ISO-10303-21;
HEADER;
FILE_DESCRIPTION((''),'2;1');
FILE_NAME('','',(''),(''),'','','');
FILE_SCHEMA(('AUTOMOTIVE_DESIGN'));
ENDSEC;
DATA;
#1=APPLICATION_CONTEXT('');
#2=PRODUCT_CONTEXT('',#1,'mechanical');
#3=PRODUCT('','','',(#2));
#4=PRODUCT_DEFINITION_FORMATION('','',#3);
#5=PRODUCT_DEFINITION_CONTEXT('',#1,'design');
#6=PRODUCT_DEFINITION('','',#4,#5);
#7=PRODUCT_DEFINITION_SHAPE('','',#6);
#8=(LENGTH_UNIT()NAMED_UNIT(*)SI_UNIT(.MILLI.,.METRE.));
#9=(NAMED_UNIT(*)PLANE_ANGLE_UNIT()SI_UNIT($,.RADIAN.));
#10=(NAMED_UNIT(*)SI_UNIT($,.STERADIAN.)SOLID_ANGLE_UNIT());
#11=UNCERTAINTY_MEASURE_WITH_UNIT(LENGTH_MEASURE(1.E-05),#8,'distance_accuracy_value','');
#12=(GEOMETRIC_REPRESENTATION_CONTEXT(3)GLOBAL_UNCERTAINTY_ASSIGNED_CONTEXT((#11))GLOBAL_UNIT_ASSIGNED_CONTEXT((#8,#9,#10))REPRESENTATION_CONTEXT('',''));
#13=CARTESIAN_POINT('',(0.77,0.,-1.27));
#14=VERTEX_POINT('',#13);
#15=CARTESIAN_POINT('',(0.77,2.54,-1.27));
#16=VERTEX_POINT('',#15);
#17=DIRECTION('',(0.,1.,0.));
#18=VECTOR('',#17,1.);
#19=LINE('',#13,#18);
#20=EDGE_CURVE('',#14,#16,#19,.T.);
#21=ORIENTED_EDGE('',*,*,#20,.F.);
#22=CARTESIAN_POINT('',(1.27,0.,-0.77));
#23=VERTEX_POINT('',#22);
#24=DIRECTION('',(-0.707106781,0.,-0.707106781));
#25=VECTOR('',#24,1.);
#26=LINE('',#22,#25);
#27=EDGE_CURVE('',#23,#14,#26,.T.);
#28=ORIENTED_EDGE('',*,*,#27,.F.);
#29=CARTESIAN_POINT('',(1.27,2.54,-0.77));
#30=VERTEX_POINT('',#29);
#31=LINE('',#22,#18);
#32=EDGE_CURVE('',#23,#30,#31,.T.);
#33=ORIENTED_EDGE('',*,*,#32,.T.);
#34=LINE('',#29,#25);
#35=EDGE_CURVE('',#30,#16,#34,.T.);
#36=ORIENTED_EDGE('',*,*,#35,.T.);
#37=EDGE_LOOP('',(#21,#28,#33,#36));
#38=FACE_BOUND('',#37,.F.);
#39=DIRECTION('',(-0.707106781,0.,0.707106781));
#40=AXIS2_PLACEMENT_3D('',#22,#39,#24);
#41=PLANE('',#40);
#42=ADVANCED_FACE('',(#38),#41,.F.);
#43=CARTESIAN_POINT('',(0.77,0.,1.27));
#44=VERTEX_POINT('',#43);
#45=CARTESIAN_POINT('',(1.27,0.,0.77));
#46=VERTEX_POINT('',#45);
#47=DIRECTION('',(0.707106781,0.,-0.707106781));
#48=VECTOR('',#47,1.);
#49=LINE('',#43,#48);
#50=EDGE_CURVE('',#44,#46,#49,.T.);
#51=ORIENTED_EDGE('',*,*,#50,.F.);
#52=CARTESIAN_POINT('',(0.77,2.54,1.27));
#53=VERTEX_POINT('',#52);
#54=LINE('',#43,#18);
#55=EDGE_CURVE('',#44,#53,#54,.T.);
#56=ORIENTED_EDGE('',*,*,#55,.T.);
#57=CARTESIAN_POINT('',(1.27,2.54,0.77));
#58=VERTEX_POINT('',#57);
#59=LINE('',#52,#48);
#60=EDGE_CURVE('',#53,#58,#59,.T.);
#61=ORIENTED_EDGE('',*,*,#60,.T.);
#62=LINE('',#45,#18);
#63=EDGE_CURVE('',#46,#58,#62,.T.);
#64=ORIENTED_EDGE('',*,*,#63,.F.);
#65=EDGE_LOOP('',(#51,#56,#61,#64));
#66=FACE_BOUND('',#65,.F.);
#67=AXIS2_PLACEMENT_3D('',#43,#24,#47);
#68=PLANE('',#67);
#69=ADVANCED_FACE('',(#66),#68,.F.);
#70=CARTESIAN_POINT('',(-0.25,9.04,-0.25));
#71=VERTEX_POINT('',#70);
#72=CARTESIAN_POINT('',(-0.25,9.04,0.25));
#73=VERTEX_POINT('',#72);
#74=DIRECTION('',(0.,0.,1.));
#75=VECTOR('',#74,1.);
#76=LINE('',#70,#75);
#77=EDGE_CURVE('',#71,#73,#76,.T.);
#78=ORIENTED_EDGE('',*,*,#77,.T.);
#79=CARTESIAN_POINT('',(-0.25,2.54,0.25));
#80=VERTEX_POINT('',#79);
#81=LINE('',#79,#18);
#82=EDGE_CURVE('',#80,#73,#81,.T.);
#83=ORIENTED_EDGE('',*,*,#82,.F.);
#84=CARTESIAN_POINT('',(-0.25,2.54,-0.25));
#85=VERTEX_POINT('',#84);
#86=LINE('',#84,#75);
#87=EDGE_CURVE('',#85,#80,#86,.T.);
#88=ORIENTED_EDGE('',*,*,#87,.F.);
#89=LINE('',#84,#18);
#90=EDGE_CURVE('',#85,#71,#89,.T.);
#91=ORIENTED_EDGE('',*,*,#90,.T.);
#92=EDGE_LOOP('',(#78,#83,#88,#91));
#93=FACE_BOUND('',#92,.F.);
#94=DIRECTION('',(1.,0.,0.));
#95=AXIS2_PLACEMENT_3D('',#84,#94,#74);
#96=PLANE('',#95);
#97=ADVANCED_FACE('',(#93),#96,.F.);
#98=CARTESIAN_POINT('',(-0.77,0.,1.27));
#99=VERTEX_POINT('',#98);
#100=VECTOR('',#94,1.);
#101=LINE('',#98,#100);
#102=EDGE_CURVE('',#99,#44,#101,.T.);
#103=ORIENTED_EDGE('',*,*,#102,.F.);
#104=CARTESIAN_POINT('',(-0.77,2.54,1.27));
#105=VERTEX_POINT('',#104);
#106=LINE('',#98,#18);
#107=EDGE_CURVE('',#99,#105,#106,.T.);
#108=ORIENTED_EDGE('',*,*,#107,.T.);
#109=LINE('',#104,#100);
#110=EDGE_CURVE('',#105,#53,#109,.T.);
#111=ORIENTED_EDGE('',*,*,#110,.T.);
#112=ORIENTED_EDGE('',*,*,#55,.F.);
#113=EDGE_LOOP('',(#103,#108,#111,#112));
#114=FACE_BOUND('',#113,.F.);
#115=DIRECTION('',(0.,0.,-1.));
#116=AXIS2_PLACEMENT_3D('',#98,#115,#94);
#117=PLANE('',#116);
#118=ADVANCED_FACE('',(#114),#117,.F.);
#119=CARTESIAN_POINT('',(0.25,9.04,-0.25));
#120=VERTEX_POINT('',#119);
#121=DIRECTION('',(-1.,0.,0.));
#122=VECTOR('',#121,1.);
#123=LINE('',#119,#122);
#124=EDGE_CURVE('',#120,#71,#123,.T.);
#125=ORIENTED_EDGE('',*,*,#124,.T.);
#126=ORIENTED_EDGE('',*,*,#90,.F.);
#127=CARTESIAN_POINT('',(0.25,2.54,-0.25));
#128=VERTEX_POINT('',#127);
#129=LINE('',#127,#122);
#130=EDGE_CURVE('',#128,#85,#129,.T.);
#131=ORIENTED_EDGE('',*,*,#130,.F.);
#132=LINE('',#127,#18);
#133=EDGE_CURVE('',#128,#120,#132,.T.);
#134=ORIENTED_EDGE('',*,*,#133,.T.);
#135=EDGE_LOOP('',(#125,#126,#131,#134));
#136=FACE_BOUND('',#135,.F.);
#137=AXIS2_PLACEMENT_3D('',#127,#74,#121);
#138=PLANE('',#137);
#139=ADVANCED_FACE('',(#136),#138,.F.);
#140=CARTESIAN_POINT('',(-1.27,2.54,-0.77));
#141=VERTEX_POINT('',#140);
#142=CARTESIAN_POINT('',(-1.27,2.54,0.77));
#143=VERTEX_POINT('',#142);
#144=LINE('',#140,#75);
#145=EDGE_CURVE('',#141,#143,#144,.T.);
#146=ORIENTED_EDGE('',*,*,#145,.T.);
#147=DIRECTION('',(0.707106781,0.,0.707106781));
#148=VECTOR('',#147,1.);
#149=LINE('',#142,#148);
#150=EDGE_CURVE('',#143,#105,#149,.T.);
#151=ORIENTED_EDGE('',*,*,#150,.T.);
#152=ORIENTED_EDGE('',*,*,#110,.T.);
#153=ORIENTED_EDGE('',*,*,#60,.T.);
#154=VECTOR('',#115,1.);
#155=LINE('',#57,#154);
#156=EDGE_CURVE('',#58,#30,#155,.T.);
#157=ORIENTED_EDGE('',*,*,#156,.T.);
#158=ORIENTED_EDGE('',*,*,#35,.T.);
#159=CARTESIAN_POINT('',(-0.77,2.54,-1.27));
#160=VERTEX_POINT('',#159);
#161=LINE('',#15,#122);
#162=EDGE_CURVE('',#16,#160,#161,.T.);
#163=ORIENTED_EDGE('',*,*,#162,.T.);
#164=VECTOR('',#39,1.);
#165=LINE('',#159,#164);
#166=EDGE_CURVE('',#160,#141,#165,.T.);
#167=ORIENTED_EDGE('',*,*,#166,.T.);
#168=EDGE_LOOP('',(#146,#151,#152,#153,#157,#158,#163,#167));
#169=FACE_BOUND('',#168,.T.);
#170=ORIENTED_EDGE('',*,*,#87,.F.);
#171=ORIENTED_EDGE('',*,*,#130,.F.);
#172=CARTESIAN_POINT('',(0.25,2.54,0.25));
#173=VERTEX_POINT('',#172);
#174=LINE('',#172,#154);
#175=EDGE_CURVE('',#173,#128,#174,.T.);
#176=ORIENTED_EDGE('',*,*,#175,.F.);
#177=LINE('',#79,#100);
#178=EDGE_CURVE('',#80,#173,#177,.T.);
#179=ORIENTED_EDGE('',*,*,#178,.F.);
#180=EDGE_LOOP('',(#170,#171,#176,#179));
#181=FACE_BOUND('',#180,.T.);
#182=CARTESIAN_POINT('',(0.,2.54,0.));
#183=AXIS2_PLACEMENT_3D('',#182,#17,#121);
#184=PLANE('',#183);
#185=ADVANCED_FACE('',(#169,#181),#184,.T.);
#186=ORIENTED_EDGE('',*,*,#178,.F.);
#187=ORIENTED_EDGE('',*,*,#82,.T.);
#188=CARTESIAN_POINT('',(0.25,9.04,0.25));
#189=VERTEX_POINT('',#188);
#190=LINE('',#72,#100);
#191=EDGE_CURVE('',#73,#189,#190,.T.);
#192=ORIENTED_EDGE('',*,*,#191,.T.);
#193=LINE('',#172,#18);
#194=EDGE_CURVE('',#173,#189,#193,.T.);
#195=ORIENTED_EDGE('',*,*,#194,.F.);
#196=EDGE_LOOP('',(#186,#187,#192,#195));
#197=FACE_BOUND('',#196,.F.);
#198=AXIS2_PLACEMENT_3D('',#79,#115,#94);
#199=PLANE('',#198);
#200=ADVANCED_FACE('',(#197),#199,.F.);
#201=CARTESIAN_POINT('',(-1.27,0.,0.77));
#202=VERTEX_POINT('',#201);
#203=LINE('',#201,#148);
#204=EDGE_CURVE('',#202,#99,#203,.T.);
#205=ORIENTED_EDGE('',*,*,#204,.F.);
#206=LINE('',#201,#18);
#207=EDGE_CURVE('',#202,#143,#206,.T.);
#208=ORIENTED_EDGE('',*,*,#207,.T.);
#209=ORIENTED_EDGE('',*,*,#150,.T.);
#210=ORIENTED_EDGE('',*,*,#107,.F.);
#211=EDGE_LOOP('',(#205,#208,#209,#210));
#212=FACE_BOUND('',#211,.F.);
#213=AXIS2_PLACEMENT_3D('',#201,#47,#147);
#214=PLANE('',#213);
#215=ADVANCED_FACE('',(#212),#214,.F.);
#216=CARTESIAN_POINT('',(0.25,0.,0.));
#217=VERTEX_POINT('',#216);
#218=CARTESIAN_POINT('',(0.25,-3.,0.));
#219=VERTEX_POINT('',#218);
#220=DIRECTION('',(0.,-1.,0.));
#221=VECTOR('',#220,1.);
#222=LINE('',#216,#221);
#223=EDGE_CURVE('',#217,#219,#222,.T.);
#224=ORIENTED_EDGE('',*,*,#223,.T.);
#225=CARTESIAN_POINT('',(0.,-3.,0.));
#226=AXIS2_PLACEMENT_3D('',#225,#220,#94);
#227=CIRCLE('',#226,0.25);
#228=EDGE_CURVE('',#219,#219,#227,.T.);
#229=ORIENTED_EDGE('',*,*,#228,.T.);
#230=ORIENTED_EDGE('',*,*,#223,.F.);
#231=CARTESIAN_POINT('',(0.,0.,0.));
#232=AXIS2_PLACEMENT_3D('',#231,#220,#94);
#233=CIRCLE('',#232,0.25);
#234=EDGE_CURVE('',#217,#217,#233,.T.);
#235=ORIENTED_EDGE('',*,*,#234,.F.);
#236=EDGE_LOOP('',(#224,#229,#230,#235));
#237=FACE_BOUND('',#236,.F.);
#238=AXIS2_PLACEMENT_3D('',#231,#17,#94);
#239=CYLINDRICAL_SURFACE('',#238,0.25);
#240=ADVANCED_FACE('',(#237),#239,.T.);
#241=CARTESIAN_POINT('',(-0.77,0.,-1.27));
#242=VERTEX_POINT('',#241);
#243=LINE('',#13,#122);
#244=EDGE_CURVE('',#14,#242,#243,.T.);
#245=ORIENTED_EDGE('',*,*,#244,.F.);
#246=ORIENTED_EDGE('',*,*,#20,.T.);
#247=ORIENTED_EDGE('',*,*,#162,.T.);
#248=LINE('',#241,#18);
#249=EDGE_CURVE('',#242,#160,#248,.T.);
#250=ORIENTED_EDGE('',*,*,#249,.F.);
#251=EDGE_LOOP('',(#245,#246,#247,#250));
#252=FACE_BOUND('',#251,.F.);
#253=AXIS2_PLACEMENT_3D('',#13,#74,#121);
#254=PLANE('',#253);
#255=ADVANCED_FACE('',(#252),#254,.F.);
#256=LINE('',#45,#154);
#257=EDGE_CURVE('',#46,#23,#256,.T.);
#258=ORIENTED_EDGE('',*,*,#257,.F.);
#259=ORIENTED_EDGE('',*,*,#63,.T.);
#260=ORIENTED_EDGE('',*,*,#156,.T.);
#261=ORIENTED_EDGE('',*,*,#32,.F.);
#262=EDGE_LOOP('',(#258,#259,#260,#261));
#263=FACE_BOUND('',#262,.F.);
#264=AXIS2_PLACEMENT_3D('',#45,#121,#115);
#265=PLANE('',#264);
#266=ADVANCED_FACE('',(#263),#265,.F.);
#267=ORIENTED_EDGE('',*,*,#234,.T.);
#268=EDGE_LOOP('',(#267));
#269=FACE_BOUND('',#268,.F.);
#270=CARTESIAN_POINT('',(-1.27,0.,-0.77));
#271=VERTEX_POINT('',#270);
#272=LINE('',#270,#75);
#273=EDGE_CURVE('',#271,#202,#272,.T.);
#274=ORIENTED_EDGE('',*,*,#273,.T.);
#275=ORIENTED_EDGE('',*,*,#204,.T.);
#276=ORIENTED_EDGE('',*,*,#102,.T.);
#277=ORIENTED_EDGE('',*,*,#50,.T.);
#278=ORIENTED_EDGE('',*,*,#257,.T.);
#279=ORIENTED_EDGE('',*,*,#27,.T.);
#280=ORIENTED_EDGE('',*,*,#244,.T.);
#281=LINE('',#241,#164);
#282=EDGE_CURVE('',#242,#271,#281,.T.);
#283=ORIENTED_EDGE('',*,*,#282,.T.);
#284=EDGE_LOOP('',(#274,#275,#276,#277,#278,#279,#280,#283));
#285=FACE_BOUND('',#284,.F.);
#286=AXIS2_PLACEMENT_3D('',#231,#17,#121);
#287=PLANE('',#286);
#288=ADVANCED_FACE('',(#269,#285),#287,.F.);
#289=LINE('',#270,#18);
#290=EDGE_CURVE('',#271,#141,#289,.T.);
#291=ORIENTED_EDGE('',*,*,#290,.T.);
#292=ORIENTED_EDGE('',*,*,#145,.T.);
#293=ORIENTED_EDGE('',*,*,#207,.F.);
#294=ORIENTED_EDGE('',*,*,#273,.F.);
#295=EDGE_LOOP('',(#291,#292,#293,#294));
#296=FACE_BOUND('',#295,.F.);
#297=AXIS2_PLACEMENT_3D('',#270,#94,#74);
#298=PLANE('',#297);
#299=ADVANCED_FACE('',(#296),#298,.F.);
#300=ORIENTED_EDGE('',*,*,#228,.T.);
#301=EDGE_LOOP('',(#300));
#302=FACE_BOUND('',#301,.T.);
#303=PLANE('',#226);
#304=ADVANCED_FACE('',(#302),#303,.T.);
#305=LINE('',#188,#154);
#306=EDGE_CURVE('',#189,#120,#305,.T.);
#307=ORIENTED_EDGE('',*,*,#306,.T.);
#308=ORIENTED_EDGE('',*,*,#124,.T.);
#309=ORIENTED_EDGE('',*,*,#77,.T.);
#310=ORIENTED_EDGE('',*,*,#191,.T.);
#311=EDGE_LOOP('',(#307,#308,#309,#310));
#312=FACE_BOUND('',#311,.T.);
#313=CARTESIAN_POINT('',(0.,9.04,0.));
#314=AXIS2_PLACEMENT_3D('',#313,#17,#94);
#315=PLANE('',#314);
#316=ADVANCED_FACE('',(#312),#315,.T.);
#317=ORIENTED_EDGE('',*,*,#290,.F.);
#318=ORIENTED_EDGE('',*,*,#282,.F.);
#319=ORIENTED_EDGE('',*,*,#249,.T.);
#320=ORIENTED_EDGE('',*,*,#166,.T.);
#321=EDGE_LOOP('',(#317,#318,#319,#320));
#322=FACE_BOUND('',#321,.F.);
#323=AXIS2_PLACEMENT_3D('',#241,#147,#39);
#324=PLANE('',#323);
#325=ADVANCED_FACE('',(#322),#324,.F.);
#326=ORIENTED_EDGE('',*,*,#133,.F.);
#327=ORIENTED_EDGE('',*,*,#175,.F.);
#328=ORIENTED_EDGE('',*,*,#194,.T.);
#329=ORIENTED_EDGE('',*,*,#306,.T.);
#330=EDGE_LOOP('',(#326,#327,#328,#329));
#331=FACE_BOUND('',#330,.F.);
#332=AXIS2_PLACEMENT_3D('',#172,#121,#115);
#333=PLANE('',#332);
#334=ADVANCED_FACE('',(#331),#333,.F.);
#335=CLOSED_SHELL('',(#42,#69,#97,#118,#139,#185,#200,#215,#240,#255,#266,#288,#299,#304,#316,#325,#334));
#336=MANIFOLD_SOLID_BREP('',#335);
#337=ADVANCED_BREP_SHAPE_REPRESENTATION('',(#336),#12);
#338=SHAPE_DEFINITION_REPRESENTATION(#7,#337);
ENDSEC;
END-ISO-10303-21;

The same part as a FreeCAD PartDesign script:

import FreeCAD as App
import Part
import Sketcher

doc = App.newDocument("Part")
params = doc.addObject("Spreadsheet::Sheet", "Params")
for row, (alias, value) in enumerate([
    ("pad1_length", "2.54 mm"),
    ("sketch2_width", "0.5 mm"),
    ("pad2_length", "6.5 mm"),
    ("sketch3_diameter", "0.5 mm"),
    ("pad3_length", "3 mm"),
], start=1):
    params.set(f"A{row}", alias)
    params.set(f"B{row}", "=" + value)
    params.setAlias(f"B{row}", alias)

body = doc.addObject("PartDesign::Body", "Body")

sketch1 = doc.addObject("Sketcher::SketchObject", "Sketch")
body.addObject(sketch1)
sketch1.AttachmentSupport = (doc.XZ_Plane, [""])
sketch1.MapMode = "FlatFace"
sketch1.addGeometry([
    Part.LineSegment(App.Vector(-1.27, 0.77, 0), App.Vector(-0.77, 1.27, 0)),
    Part.LineSegment(App.Vector(-0.77, 1.27, 0), App.Vector(0.77, 1.27, 0)),
    Part.LineSegment(App.Vector(0.77, 1.27, 0), App.Vector(1.27, 0.77, 0)),
    Part.LineSegment(App.Vector(1.27, 0.77, 0), App.Vector(1.27, -0.77, 0)),
    Part.LineSegment(App.Vector(1.27, -0.77, 0), App.Vector(0.77, -1.27, 0)),
    Part.LineSegment(App.Vector(0.77, -1.27, 0), App.Vector(-0.77, -1.27, 0)),
    Part.LineSegment(App.Vector(-0.77, -1.27, 0), App.Vector(-1.27, -0.77, 0)),
    Part.LineSegment(App.Vector(-1.27, -0.77, 0), App.Vector(-1.27, 0.77, 0)),
], False)
sketch1.addConstraint([
    Sketcher.Constraint("Coincident", 0, 2, 1, 1),
    Sketcher.Constraint("Coincident", 1, 2, 2, 1),
    Sketcher.Constraint("Coincident", 2, 2, 3, 1),
    Sketcher.Constraint("Coincident", 3, 2, 4, 1),
    Sketcher.Constraint("Coincident", 4, 2, 5, 1),
    Sketcher.Constraint("Coincident", 5, 2, 6, 1),
    Sketcher.Constraint("Coincident", 6, 2, 7, 1),
    Sketcher.Constraint("Coincident", 7, 2, 0, 1),
    Sketcher.Constraint("Horizontal", 1),
    Sketcher.Constraint("Vertical", 3),
    Sketcher.Constraint("Horizontal", 5),
    Sketcher.Constraint("Vertical", 7),
    Sketcher.Constraint("Symmetric", 0, 2, 4, 2, -1, 1),
    Sketcher.Constraint("Symmetric", 2, 2, 6, 2, -1, 1),
    Sketcher.Constraint("Perpendicular", 0, 2),
    Sketcher.Constraint("Perpendicular", 2, 4),
    Sketcher.Constraint("Perpendicular", 4, 6),
    Sketcher.Constraint("Horizontal", 3, 2, 6, 2),
    Sketcher.Constraint("Vertical", 1, 2, 4, 2),
    Sketcher.Constraint("Equal", 5, 3),
    Sketcher.Constraint("DistanceX", 1, 2, 2, 2, 0.5),
    Sketcher.Constraint("DistanceY", 4, 2, 1, 2, 2.54),
])
pad1 = doc.addObject("PartDesign::Pad", "Pad")
body.addObject(pad1)
pad1.Profile = sketch1
pad1.setExpression("Length", "Params.pad1_length")
pad1.Reversed = True

sketch2 = doc.addObject("Sketcher::SketchObject", "Sketch001")
body.addObject(sketch2)
sketch2.AttachmentSupport = (doc.XZ_Plane, [""])
sketch2.MapMode = "FlatFace"
sketch2.AttachmentOffset = App.Placement(App.Vector(0, 0, -2.54), App.Rotation())
sketch2.addGeometry([
    Part.LineSegment(App.Vector(-0.25, -0.25, 0), App.Vector(-0.25, 0.25, 0)),
    Part.LineSegment(App.Vector(-0.25, 0.25, 0), App.Vector(0.25, 0.25, 0)),
    Part.LineSegment(App.Vector(0.25, 0.25, 0), App.Vector(0.25, -0.25, 0)),
    Part.LineSegment(App.Vector(0.25, -0.25, 0), App.Vector(-0.25, -0.25, 0)),
], False)
sketch2.addConstraint([
    Sketcher.Constraint("Coincident", 0, 2, 1, 1),
    Sketcher.Constraint("Coincident", 1, 2, 2, 1),
    Sketcher.Constraint("Coincident", 2, 2, 3, 1),
    Sketcher.Constraint("Coincident", 3, 2, 0, 1),
    Sketcher.Constraint("Vertical", 0),
    Sketcher.Constraint("Horizontal", 1),
    Sketcher.Constraint("Vertical", 2),
    Sketcher.Constraint("Horizontal", 3),
    Sketcher.Constraint("Symmetric", 0, 2, 2, 2, -1, 1),
    Sketcher.Constraint("Equal", 3, 0),
    Sketcher.Constraint("DistanceX", 1, 1, 1, 2, 0.5),
])
sketch2.setExpression("Constraints[10]", "Params.sketch2_width")
pad2 = doc.addObject("PartDesign::Pad", "Pad001")
body.addObject(pad2)
pad2.Profile = sketch2
pad2.setExpression("Length", "Params.pad2_length")
pad2.Reversed = True

sketch3 = doc.addObject("Sketcher::SketchObject", "Sketch002")
body.addObject(sketch3)
sketch3.AttachmentSupport = (doc.XZ_Plane, [""])
sketch3.MapMode = "FlatFace"
sketch3.addGeometry(Part.Circle(App.Vector(0, 0, 0), App.Vector(0, 0, 1), 0.25), False)
sketch3.addConstraint([
    Sketcher.Constraint("Coincident", 0, 3, -1, 1),
    Sketcher.Constraint("Diameter", 0, 0.5),
])
sketch3.setExpression("Constraints[1]", "Params.sketch3_diameter")
pad3 = doc.addObject("PartDesign::Pad", "Pad002")
body.addObject(pad3)
pad3.Profile = sketch3
pad3.setExpression("Length", "Params.pad3_length")

doc.recompute()
